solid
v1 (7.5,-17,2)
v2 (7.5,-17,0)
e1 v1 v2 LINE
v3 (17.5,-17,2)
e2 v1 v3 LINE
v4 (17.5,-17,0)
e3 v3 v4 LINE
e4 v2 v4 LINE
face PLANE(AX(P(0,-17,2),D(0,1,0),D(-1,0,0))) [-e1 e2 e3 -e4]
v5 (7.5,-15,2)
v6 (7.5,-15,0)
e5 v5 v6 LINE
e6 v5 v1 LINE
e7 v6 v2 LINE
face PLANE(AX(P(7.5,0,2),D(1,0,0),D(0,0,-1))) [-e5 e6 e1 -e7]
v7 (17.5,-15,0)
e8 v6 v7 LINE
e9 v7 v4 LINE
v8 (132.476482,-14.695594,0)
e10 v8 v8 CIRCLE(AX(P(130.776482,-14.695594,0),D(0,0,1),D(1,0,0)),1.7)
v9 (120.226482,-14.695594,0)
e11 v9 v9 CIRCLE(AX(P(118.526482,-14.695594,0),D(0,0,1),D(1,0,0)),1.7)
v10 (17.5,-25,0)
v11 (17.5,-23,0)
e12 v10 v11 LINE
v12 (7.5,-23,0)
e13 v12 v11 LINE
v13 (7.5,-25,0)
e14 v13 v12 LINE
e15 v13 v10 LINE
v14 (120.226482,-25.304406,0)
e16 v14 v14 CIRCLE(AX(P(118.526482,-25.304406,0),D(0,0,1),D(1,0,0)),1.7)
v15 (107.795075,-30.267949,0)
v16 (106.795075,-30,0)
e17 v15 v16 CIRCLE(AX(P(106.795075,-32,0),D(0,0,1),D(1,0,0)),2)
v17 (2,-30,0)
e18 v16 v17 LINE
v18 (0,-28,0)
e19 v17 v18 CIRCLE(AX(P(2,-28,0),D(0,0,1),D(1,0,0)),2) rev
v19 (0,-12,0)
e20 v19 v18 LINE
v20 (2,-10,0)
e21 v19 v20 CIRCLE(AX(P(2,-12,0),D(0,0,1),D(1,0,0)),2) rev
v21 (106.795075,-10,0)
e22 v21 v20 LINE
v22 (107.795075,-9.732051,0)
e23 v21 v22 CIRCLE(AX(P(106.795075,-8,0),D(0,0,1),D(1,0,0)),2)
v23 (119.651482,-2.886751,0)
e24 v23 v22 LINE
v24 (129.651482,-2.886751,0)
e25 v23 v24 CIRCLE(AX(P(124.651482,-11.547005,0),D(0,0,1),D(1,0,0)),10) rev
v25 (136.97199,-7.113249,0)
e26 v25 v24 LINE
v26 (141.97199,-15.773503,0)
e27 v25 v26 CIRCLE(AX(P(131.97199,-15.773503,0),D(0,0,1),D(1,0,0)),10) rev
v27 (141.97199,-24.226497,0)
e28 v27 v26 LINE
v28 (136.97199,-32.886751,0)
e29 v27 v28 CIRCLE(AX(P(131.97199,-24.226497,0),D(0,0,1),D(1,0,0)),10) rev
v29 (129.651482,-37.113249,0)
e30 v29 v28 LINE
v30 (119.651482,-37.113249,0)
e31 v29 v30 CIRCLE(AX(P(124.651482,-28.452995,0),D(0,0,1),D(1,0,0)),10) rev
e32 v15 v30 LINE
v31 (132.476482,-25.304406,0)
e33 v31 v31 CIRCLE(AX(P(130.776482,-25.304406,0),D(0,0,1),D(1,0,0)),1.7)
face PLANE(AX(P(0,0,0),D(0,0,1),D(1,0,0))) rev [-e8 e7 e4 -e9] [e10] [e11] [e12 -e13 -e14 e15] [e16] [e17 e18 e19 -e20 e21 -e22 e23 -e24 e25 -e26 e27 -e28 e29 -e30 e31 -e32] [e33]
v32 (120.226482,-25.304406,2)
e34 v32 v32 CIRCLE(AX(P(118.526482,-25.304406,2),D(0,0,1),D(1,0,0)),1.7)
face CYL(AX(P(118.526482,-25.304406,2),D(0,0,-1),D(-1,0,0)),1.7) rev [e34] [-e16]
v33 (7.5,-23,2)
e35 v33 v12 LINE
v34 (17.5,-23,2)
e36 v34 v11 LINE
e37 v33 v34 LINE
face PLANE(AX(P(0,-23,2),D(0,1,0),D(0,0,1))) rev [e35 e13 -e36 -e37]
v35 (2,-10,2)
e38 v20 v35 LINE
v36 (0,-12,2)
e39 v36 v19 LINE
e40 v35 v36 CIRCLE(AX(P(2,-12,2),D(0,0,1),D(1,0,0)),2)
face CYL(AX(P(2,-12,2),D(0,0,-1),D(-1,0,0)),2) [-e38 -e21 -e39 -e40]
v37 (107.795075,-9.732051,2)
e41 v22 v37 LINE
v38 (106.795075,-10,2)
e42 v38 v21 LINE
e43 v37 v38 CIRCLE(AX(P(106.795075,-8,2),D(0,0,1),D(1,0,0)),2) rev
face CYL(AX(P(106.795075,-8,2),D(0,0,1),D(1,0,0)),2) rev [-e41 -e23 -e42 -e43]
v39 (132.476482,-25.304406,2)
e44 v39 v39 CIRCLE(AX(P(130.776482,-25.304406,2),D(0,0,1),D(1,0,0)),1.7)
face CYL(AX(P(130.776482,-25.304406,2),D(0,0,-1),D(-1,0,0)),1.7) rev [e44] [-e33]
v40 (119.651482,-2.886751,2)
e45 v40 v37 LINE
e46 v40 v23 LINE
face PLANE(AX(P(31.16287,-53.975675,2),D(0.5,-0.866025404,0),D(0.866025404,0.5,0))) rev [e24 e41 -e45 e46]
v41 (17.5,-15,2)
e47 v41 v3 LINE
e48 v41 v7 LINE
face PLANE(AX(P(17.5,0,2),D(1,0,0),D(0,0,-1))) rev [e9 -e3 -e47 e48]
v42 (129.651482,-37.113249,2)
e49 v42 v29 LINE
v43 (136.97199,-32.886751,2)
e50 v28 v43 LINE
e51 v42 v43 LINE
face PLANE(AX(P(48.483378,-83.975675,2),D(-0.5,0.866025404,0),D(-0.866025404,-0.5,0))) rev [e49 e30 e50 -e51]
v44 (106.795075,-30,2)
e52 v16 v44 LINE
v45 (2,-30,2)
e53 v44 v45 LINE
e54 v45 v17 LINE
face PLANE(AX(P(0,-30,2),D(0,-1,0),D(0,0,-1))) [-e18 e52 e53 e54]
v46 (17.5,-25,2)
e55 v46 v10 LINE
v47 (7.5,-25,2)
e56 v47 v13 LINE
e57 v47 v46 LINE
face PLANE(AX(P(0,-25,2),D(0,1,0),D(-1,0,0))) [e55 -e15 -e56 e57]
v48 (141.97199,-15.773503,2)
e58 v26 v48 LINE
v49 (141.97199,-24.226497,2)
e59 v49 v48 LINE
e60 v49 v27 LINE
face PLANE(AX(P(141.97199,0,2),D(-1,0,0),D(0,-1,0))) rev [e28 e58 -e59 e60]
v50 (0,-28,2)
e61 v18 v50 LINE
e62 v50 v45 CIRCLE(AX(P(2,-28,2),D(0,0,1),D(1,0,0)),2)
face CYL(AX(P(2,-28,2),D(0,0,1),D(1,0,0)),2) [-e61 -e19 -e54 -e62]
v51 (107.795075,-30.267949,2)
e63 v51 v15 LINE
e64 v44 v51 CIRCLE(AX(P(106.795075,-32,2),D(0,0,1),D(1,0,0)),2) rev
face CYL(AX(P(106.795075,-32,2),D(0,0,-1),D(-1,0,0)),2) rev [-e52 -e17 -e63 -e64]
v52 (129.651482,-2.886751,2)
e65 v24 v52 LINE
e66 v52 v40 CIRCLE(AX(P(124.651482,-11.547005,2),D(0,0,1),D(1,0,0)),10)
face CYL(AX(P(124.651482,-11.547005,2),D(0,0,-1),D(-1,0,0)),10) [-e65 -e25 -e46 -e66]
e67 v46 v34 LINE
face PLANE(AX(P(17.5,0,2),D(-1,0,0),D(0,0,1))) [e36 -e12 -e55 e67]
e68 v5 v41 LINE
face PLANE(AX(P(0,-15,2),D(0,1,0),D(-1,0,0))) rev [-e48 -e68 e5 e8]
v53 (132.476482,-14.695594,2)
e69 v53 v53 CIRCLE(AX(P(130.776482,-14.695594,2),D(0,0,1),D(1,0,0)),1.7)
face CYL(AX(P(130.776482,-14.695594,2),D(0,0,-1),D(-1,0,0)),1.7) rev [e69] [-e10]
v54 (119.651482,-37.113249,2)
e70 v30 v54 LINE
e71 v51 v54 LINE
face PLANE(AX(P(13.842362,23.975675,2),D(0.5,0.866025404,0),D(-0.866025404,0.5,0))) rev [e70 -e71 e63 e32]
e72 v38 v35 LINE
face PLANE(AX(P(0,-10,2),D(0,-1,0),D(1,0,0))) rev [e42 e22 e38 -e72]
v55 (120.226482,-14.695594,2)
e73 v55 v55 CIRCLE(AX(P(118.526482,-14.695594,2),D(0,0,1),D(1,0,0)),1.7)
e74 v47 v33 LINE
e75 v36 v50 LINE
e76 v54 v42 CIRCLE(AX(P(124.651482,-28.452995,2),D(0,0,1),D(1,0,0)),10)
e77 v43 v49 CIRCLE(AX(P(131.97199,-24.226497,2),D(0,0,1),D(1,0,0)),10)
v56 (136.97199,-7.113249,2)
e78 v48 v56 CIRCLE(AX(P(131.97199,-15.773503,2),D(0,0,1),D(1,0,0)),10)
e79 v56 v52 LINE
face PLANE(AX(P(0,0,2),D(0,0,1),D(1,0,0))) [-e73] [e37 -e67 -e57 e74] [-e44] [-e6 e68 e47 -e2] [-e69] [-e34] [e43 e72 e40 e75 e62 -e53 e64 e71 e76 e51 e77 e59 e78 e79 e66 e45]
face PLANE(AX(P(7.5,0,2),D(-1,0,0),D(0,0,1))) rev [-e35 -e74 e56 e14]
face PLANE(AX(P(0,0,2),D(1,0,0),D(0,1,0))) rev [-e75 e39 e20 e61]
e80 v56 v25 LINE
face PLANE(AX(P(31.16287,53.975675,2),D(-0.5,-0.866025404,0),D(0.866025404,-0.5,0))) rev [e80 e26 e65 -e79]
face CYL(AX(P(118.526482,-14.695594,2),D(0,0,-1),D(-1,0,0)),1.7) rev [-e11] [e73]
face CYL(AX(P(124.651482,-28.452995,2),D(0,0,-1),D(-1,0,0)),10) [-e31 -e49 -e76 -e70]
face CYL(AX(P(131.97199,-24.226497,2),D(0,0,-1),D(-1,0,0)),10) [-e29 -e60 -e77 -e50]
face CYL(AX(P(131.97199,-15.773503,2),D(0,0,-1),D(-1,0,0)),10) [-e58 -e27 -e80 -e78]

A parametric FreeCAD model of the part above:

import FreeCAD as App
import Part
import Sketcher
Q = App.Units.Quantity


def edges_at(feature, points):
    """Names of the edges that pass closest to the given points."""
    edges = feature.Shape.Edges
    near = lambda p: min(range(len(edges)), key=lambda i: edges[i].distToShape(Part.Vertex(*p))[0])
    return sorted({f"Edge{near(p) + 1}" for p in points})

doc = App.newDocument("Part")
body = doc.addObject("PartDesign::Body", "Body")

sketch1 = body.newObject("Sketcher::SketchObject", "Sketch")
sketch1.AttachmentSupport = (doc.getObject("XY_Plane"), [""])
sketch1.MapMode = "FlatFace"
sketch1.addGeometry([
    Part.LineSegment(App.Vector(0, -10, 0), App.Vector(0, -30, 0)),
    Part.LineSegment(App.Vector(0, -30, 0), App.Vector(107.330973, -30, 0)),
    Part.LineSegment(App.Vector(107.330973, -30, 0), App.Vector(124.651482, -40, 0)),
    Part.LineSegment(App.Vector(124.651482, -40, 0), App.Vector(140, -31.138529, 0)),
    Part.LineSegment(App.Vector(140, -31.138529, 0), App.Vector(141.97199, -30, 0)),
    Part.LineSegment(App.Vector(141.97199, -30, 0), App.Vector(141.97199, -10, 0)),
    Part.LineSegment(App.Vector(141.97199, -10, 0), App.Vector(140, -8.861471, 0)),
    Part.LineSegment(App.Vector(140, -8.861471, 0), App.Vector(124.651482, 0, 0)),
    Part.LineSegment(App.Vector(124.651482, 0, 0), App.Vector(107.330973, -10, 0)),
    Part.LineSegment(App.Vector(107.330973, -10, 0), App.Vector(0, -10, 0)),
    Part.LineSegment(App.Vector(17.5, -25, 0), App.Vector(7.5, -25, 0)),
    Part.LineSegment(App.Vector(7.5, -25, 0), App.Vector(7.5, -23, 0)),
    Part.LineSegment(App.Vector(7.5, -23, 0), App.Vector(17.5, -23, 0)),
    Part.LineSegment(App.Vector(17.5, -23, 0), App.Vector(17.5, -25, 0)),
    Part.LineSegment(App.Vector(17.5, -17, 0), App.Vector(7.5, -17, 0)),
    Part.LineSegment(App.Vector(7.5, -17, 0), App.Vector(7.5, -15, 0)),
    Part.LineSegment(App.Vector(7.5, -15, 0), App.Vector(17.5, -15, 0)),
    Part.LineSegment(App.Vector(17.5, -15, 0), App.Vector(17.5, -17, 0)),
    Part.Circle(App.Vector(130.776482, -14.695594, 0), App.Vector(0, 0, 1), 1.7),
    Part.Circle(App.Vector(118.526482, -25.304406, 0), App.Vector(0, 0, 1), 1.7),
    Part.Circle(App.Vector(130.776482, -25.304406, 0), App.Vector(0, 0, 1), 1.7),
    Part.Circle(App.Vector(118.526482, -14.695594, 0), App.Vector(0, 0, 1), 1.7),
], False)
sketch1.addConstraint([
    Sketcher.Constraint("Coincident", 0, 2, 1, 1),
    Sketcher.Constraint("Coincident", 1, 2, 2, 1),
    Sketcher.Constraint("Coincident", 2, 2, 3, 1),
    Sketcher.Constraint("Coincident", 3, 2, 4, 1),
    Sketcher.Constraint("Coincident", 4, 2, 5, 1),
    Sketcher.Constraint("Coincident", 5, 2, 6, 1),
    Sketcher.Constraint("Coincident", 6, 2, 7, 1),
    Sketcher.Constraint("Coincident", 7, 2, 8, 1),
    Sketcher.Constraint("Coincident", 8, 2, 9, 1),
    Sketcher.Constraint("Coincident", 9, 2, 0, 1),
    Sketcher.Constraint("Coincident", 10, 2, 11, 1),
    Sketcher.Constraint("Coincident", 11, 2, 12, 1),
    Sketcher.Constraint("Coincident", 12, 2, 13, 1),
    Sketcher.Constraint("Coincident", 13, 2, 10, 1),
    Sketcher.Constraint("Coincident", 14, 2, 15, 1),
    Sketcher.Constraint("Coincident", 15, 2, 16, 1),
    Sketcher.Constraint("Coincident", 16, 2, 17, 1),
    Sketcher.Constraint("Coincident", 17, 2, 14, 1),
    Sketcher.Constraint("Vertical", 0),
    Sketcher.Constraint("Horizontal", 1),
    Sketcher.Constraint("Vertical", 5),
    Sketcher.Constraint("Horizontal", 9),
    Sketcher.Constraint("Horizontal", 10),
    Sketcher.Constraint("Vertical", 11),
    Sketcher.Constraint("Horizontal", 12),
    Sketcher.Constraint("Vertical", 13),
    Sketcher.Constraint("Horizontal", 14),
    Sketcher.Constraint("Vertical", 15),
    Sketcher.Constraint("Horizontal", 16),
    Sketcher.Constraint("Vertical", 17),
    Sketcher.Constraint("Equal", 18, 19),
    Sketcher.Constraint("Equal", 19, 20),
    Sketcher.Constraint("Equal", 20, 21),
    Sketcher.Constraint("PointOnObject", 0, 2, -2),
    Sketcher.Constraint("PointOnObject", 7, 2, -1),
    Sketcher.Constraint("Parallel", 3, 4),
    Sketcher.Constraint("Parallel", 2, 6),
    Sketcher.Constraint("Parallel", 6, 7),
    Sketcher.Constraint("Parallel", 4, 8),
    Sketcher.Constraint("Horizontal", 19, 3, 20, 3),
    Sketcher.Constraint("Horizontal", 18, 3, 21, 3),
    Sketcher.Constraint("Horizontal", 1, 2, 4, 2),
    Sketcher.Constraint("Horizontal", 5, 2, 8, 2),
    Sketcher.Constraint("Vertical", 18, 3, 20, 3),
    Sketcher.Constraint("Vertical", 19, 3, 21, 3),
    Sketcher.Constraint("Vertical", 3, 2, 6, 2),
    Sketcher.Constraint("Vertical", 2, 2, 7, 2),
    Sketcher.Constraint("Vertical", 1, 2, 8, 2),
    Sketcher.Constraint("Vertical", 11, 2, 14, 2),
    Sketcher.Constraint("Vertical", 13, 2, 16, 2),
    Sketcher.Constraint("Equal", 13, 15),
    Sketcher.Constraint("Diameter", 18, 3.4),
    Sketcher.Constraint("DistanceX", 10, 2, 10, 1, 10.0),
    Sketcher.Constraint("DistanceY", 0, 2, 0, 1, 20.0),
    Sketcher.Constraint("DistanceY", 11, 1, 11, 2, 2.0),
    Sketcher.Constraint("Angle", 2, Q("-30 deg")),
    Sketcher.Constraint("Distance", 2, 20.0),
    Sketcher.Constraint("DistanceX", -1, 1, 3, 2, 140.0),
    Sketcher.Constraint("DistanceY", 10, 2, -1, 1, 25.0),
    Sketcher.Constraint("DistanceY", 14, 2, -1, 1, 17.0),
    Sketcher.Constraint("DistanceX", -1, 1, 10, 2, 7.5),
    Sketcher.Constraint("DistanceX", 19, 3, 18, 3, 12.25),
    Sketcher.Constraint("DistanceX", 19, 3, 2, 2, 6.125),
    Sketcher.Constraint("DistanceX", 1, 1, 1, 2, 107.330973),
    Sketcher.Constraint("DistanceY", 19, 3, 18, 3, 10.608811),
    Sketcher.Constraint("DistanceY", 18, 3, -1, 1, 14.695594),
])
pad1 = body.newObject("PartDesign::Pad", "Pad")
pad1.Profile = sketch1
pad1.Length = 2
doc.recompute()

fillet = body.newObject("PartDesign::Fillet", "Fillet")
fillet.Base = (pad1, edges_at(pad1, [(124.651, 0, 1)]))
fillet.Radius = 10
doc.recompute()

fillet2 = body.newObject("PartDesign::Fillet", "Fillet001")
fillet2.Base = (fillet, edges_at(fillet, [(141.972, -10, 1)]))
fillet2.Radius = 10
doc.recompute()

fillet3 = body.newObject("PartDesign::Fillet", "Fillet002")
fillet3.Base = (fillet2, edges_at(fillet2, [(141.972, -30, 1)]))
fillet3.Radius = 10
doc.recompute()

fillet4 = body.newObject("PartDesign::Fillet", "Fillet003")
fillet4.Base = (fillet3, edges_at(fillet3, [(124.651, -40, 1)]))
fillet4.Radius = 10
doc.recompute()

fillet5 = body.newObject("PartDesign::Fillet", "Fillet004")
fillet5.Base = (fillet4, edges_at(fillet4, [(0, -30, 1), (0, -10, 1)]))
fillet5.Radius = 2
doc.recompute()

fillet6 = body.newObject("PartDesign::Fillet", "Fillet005")
fillet6.Base = (fillet5, edges_at(fillet5, [(107.331, -10, 1)]))
fillet6.Radius = 2
doc.recompute()

fillet7 = body.newObject("PartDesign::Fillet", "Fillet006")
fillet7.Base = (fillet6, edges_at(fillet6, [(107.331, -30, 1)]))
fillet7.Radius = 2

doc.recompute()
